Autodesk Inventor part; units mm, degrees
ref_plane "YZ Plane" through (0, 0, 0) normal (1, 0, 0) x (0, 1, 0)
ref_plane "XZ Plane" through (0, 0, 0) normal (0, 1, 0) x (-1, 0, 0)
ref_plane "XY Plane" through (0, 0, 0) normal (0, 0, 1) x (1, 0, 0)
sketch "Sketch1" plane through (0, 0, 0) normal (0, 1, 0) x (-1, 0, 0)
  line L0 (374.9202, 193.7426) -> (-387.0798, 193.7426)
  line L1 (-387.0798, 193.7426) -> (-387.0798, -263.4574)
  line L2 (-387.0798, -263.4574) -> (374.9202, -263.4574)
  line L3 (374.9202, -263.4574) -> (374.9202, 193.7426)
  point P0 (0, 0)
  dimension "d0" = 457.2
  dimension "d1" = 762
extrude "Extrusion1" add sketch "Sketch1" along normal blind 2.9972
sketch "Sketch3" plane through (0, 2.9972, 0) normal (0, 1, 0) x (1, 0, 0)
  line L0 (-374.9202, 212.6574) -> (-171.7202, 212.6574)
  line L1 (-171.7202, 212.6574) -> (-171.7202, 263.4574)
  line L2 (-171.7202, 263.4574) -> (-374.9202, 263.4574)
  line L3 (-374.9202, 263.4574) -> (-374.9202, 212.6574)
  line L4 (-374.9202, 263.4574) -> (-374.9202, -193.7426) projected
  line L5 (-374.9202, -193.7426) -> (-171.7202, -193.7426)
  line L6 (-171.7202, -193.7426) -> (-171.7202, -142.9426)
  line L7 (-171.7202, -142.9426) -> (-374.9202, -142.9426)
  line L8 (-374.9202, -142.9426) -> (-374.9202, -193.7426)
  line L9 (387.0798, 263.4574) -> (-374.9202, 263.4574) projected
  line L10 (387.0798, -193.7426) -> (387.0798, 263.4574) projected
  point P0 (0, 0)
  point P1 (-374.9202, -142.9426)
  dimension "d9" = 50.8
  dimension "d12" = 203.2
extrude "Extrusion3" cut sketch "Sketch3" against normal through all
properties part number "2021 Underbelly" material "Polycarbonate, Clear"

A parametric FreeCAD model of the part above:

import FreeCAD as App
import Part
import Sketcher
Q = App.Units.Quantity


def add_polygon(sketch, points):
    """Adds a closed chain of lines whose ends are joined by coincident constraints."""
    first, n = sketch.GeometryCount, len(points)
    for a, b in zip(points, points[1:] + points[:1]):
        sketch.addGeometry(Part.LineSegment(App.Vector(*a, 0), App.Vector(*b, 0)), False)
    for i in range(n):
        sketch.addConstraint(Sketcher.Constraint("Coincident", first + i, 2, first + (i + 1) % n, 1))

doc = App.newDocument("Part")
params = doc.addObject("Spreadsheet::Sheet", "Params")
for row, (alias, value) in enumerate([
    ("sketch1_width", "30 in"),
    ("sketch1_height", "18 in"),
    ("pad1_length", "0.118 in"),
    ("sketch2_width", "8 in"),
    ("sketch2_height", "2 in"),
], start=1):
    params.set(f"A{row}", alias)
    params.set(f"B{row}", "=" + value)
    params.setAlias(f"B{row}", alias)

body = doc.addObject("PartDesign::Body", "Body")

# Sketch on XZ plane
sketch1 = body.newObject("Sketcher::SketchObject", "Sketch")
sketch1.AttachmentSupport = (doc.getObject("XZ_Plane"), [""])
sketch1.MapMode = "FlatFace"
add_polygon(sketch1, [(-375, -263), (-375, 194), (387, 194), (387, -263)])  # lines 0-3
sketch1.addConstraint(Sketcher.Constraint("Vertical", 0))
sketch1.addConstraint(Sketcher.Constraint("Horizontal", 1))
sketch1.addConstraint(Sketcher.Constraint("Vertical", 2))
sketch1.addConstraint(Sketcher.Constraint("Horizontal", 3))
sketch1.addConstraint(Sketcher.Constraint("DistanceX", 1, 1, 1, 2, Q("30 in")))
sketch1.addConstraint(Sketcher.Constraint("DistanceY", 0, 1, 0, 2, Q("18 in")))
sketch1.addConstraint(Sketcher.Constraint("DistanceX", 0, 2, -1, 1, 374.9202))
sketch1.addConstraint(Sketcher.Constraint("DistanceY", -1, 1, 0, 2, 193.7426))
sketch1.setExpression("Constraints[8]", "Params.sketch1_width")
sketch1.setExpression("Constraints[9]", "Params.sketch1_height")
pad1 = body.newObject("PartDesign::Pad", "Pad")
pad1.Profile = sketch1
pad1.setExpression("Length", "Params.pad1_length")
pad1.Reversed = True

# Sketch on XZ plane
sketch2 = body.newObject("Sketcher::SketchObject", "Sketch001")
sketch2.AttachmentSupport = (doc.getObject("XZ_Plane"), [""])
sketch2.MapMode = "FlatFace"
sketch2.AttachmentOffset = App.Placement(App.Vector(0, 0, -0.118 * 25.4), App.Rotation())
add_polygon(sketch2, [(-375, -263), (-375, -213), (-172, -213), (-172, -263)])  # lines 0-3
add_polygon(sketch2, [(-172, 143), (-375, 143), (-375, 194), (-172, 194)])  # lines 4-7
sketch2.addConstraint(Sketcher.Constraint("Vertical", 0))
sketch2.addConstraint(Sketcher.Constraint("Horizontal", 1))
sketch2.addConstraint(Sketcher.Constraint("Vertical", 2))
sketch2.addConstraint(Sketcher.Constraint("Horizontal", 3))
sketch2.addConstraint(Sketcher.Constraint("Horizontal", 4))
sketch2.addConstraint(Sketcher.Constraint("Vertical", 5))
sketch2.addConstraint(Sketcher.Constraint("Horizontal", 6))
sketch2.addConstraint(Sketcher.Constraint("Vertical", 7))
sketch2.addConstraint(Sketcher.Constraint("Vertical", 3, 2, 4, 2))
sketch2.addConstraint(Sketcher.Constraint("Vertical", 2, 2, 6, 2))
sketch2.addConstraint(Sketcher.Constraint("Equal", 2, 5))
sketch2.addConstraint(Sketcher.Constraint("DistanceX", 1, 1, 1, 2, Q("8 in")))
sketch2.addConstraint(Sketcher.Constraint("DistanceY", 0, 1, 0, 2, Q("2 in")))
sketch2.addConstraint(Sketcher.Constraint("DistanceY", 0, 2, 4, 2, Q("14 in")))
sketch2.addConstraint(Sketcher.Constraint("DistanceX", 0, 2, -1, 1, 374.9202))
sketch2.addConstraint(Sketcher.Constraint("DistanceY", 0, 2, -1, 1, 212.6574))
sketch2.setExpression("Constraints[19]", "Params.sketch2_width")
sketch2.setExpression("Constraints[20]", "Params.sketch2_height")
pocket1 = body.newObject("PartDesign::Pocket", "Pocket")
pocket1.Profile = sketch2
pocket1.Type = "ThroughAll"
pocket1.Reversed = True

doc.recompute()
